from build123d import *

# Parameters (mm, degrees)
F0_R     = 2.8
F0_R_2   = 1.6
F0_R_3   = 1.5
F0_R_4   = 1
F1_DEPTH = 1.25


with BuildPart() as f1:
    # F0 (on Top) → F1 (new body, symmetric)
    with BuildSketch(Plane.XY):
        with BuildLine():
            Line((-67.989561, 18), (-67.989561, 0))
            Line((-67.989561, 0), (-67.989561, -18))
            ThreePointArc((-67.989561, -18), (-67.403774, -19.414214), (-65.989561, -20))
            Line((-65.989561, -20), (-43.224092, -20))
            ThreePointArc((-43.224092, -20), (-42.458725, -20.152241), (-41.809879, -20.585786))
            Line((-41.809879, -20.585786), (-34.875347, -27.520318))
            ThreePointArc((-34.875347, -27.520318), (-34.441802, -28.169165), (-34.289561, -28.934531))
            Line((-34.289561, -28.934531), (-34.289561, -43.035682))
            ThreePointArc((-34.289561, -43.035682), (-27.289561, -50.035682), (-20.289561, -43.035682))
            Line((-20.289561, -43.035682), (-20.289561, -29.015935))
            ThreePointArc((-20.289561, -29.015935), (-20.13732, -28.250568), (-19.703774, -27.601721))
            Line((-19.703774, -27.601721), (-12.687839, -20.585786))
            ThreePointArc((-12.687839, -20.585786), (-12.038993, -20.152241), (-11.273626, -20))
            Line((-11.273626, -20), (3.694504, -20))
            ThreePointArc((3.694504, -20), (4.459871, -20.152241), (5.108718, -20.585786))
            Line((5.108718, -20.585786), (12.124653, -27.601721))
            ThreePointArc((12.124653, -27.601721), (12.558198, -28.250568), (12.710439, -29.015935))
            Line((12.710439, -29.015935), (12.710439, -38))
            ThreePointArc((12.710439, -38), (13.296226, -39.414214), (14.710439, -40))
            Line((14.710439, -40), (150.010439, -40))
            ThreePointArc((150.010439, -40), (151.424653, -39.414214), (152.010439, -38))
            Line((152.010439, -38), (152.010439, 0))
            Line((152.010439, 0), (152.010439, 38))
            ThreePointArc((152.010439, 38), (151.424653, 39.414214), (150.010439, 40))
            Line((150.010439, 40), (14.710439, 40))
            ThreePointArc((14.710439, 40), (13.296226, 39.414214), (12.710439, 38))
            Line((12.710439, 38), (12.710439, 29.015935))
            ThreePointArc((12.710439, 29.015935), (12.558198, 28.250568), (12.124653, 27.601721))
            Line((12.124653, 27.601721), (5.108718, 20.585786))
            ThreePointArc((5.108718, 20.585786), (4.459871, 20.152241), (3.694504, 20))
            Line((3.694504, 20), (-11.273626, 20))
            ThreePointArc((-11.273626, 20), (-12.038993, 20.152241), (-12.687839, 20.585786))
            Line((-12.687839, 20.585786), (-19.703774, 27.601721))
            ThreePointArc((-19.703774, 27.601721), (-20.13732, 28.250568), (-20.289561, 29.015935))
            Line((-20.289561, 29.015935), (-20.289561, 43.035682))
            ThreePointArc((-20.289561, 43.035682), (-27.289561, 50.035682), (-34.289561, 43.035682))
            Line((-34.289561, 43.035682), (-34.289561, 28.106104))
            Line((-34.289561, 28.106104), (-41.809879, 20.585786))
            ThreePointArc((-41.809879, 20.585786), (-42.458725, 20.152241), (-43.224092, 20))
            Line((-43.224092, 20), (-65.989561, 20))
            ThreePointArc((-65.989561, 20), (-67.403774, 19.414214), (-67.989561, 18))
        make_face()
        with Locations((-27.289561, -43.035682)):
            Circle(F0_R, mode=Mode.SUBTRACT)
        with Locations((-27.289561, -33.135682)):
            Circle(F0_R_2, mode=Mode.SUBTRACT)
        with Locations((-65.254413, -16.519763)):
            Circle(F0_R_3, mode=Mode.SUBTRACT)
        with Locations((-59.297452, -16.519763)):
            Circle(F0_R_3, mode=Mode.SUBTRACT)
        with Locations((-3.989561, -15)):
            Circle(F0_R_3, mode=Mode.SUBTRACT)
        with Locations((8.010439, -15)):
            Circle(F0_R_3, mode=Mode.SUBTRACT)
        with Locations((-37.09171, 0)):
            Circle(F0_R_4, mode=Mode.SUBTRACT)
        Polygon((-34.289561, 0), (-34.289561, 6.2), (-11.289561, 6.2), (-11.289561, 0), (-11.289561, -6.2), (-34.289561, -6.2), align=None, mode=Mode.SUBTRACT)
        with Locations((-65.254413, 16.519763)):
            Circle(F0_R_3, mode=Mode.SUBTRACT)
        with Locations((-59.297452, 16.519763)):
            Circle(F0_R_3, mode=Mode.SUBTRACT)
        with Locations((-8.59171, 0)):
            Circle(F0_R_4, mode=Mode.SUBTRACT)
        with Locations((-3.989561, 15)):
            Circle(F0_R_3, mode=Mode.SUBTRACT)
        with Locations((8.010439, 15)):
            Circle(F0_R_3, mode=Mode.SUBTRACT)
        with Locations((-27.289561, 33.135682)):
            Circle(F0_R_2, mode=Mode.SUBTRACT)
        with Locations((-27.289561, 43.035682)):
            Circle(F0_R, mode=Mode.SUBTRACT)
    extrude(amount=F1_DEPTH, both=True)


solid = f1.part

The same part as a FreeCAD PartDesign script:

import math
import FreeCAD as App
import Part
import Sketcher

V = App.Vector
Q = App.Units.Quantity


def add_polygon(sketch, points):
    """Adds a closed chain of lines whose ends are joined by coincident constraints."""
    first, n = sketch.GeometryCount, len(points)
    for a, b in zip(points, points[1:] + points[:1]):
        sketch.addGeometry(Part.LineSegment(App.Vector(*a, 0), App.Vector(*b, 0)), False)
    for i in range(n):
        sketch.addConstraint(Sketcher.Constraint("Coincident", first + i, 2, first + (i + 1) % n, 1))

doc = App.newDocument("Part")
body = doc.addObject("PartDesign::Body", "Body")

sketch1 = body.newObject("Sketcher::SketchObject", "Sketch")
sketch1.AttachmentSupport = (doc.getObject("XY_Plane"), [""])
sketch1.MapMode = "FlatFace"
sketch1.addGeometry(Part.LineSegment(V(-68, 18, 0), V(-68, -18, 0)), False)
sketch1.addGeometry(Part.ArcOfCircle(Part.Circle(V(-66, -18, 0), V(0, 0, 1), 2), math.radians(-180), math.radians(-90)), False)
sketch1.addGeometry(Part.LineSegment(V(-66, -20, 0), V(-43.2, -20, 0)), False)
sketch1.addGeometry(Part.ArcOfCircle(Part.Circle(V(-43.2, -22, 0), V(0, 0, 1), 2), math.radians(45), math.radians(90)), False)
sketch1.addGeometry(Part.LineSegment(V(-41.8, -20.6, 0), V(-34.9, -27.5, 0)), False)
sketch1.addGeometry(Part.ArcOfCircle(Part.Circle(V(-36.3, -28.9, 0), V(0, 0, 1), 2), math.radians(0), math.radians(45)), False)
sketch1.addGeometry(Part.LineSegment(V(-34.3, -28.9, 0), V(-34.3, -43, 0)), False)
sketch1.addGeometry(Part.ArcOfCircle(Part.Circle(V(-27.3, -43, 0), V(0, 0, 1), 7), math.radians(180), math.radians(360)), False)
sketch1.addGeometry(Part.LineSegment(V(-20.3, -43, 0), V(-20.3, -29, 0)), False)
sketch1.addGeometry(Part.ArcOfCircle(Part.Circle(V(-18.3, -29, 0), V(0, 0, 1), 2), math.radians(135), math.radians(180)), False)
sketch1.addGeometry(Part.LineSegment(V(-19.7, -27.6, 0), V(-12.7, -20.6, 0)), False)
sketch1.addGeometry(Part.ArcOfCircle(Part.Circle(V(-11.3, -22, 0), V(0, 0, 1), 2), math.radians(90), math.radians(135)), False)
sketch1.addGeometry(Part.LineSegment(V(-11.3, -20, 0), V(3.7, -20, 0)), False)
sketch1.addGeometry(Part.ArcOfCircle(Part.Circle(V(3.7, -22, 0), V(0, 0, 1), 2), math.radians(45), math.radians(90)), False)
sketch1.addGeometry(Part.LineSegment(V(5.1, -20.6, 0), V(12.1, -27.6, 0)), False)
sketch1.addGeometry(Part.ArcOfCircle(Part.Circle(V(10.7, -29, 0), V(0, 0, 1), 2), math.radians(0), math.radians(45)), False)
sketch1.addGeometry(Part.LineSegment(V(12.7, -29, 0), V(12.7, -38, 0)), False)
sketch1.addGeometry(Part.ArcOfCircle(Part.Circle(V(14.7, -38, 0), V(0, 0, 1), 2), math.radians(-180), math.radians(-90)), False)
sketch1.addGeometry(Part.LineSegment(V(14.7, -40, 0), V(150, -40, 0)), False)
sketch1.addGeometry(Part.ArcOfCircle(Part.Circle(V(150, -38, 0), V(0, 0, 1), 2), math.radians(-90), math.radians(0)), False)
sketch1.addGeometry(Part.LineSegment(V(152, -38, 0), V(152, 38, 0)), False)
sketch1.addGeometry(Part.ArcOfCircle(Part.Circle(V(150, 38, 0), V(0, 0, 1), 2), math.radians(0), math.radians(90)), False)
sketch1.addGeometry(Part.LineSegment(V(150, 40, 0), V(14.7, 40, 0)), False)
sketch1.addGeometry(Part.ArcOfCircle(Part.Circle(V(14.7, 38, 0), V(0, 0, 1), 2), math.radians(90), math.radians(180)), False)
sketch1.addGeometry(Part.LineSegment(V(12.7, 38, 0), V(12.7, 29, 0)), False)
sketch1.addGeometry(Part.ArcOfCircle(Part.Circle(V(10.7, 29, 0), V(0, 0, 1), 2), math.radians(-45), math.radians(0)), False)
sketch1.addGeometry(Part.LineSegment(V(12.1, 27.6, 0), V(5.1, 20.6, 0)), False)
sketch1.addGeometry(Part.ArcOfCircle(Part.Circle(V(3.7, 22, 0), V(0, 0, 1), 2), math.radians(-90), math.radians(-45)), False)
sketch1.addGeometry(Part.LineSegment(V(3.7, 20, 0), V(-11.3, 20, 0)), False)
sketch1.addGeometry(Part.ArcOfCircle(Part.Circle(V(-11.3, 22, 0), V(0, 0, 1), 2), math.radians(-135), math.radians(-90)), False)
sketch1.addGeometry(Part.LineSegment(V(-12.7, 20.6, 0), V(-19.7, 27.6, 0)), False)
sketch1.addGeometry(Part.ArcOfCircle(Part.Circle(V(-18.3, 29, 0), V(0, 0, 1), 2), math.radians(180), math.radians(225)), False)
sketch1.addGeometry(Part.LineSegment(V(-20.3, 29, 0), V(-20.3, 43, 0)), False)
sketch1.addGeometry(Part.ArcOfCircle(Part.Circle(V(-27.3, 43, 0), V(0, 0, 1), 7), math.radians(0), math.radians(180)), False)
sketch1.addGeometry(Part.LineSegment(V(-34.3, 43, 0), V(-34.3, 28.1, 0)), False)
sketch1.addGeometry(Part.LineSegment(V(-34.3, 28.1, 0), V(-41.8, 20.6, 0)), False)
sketch1.addGeometry(Part.ArcOfCircle(Part.Circle(V(-43.2, 22, 0), V(0, 0, 1), 2), math.radians(-90), math.radians(-45)), False)
sketch1.addGeometry(Part.LineSegment(V(-43.2, 20, 0), V(-66, 20, 0)), False)
sketch1.addGeometry(Part.ArcOfCircle(Part.Circle(V(-66, 18, 0), V(0, 0, 1), 2), math.radians(90), math.radians(180)), False)
sketch1.addGeometry(Part.Circle(V(-65.3, -16.5, 0), V(0, 0, 1), 1.5), False)
sketch1.addGeometry(Part.Circle(V(-59.3, -16.5, 0), V(0, 0, 1), 1.5), False)
sketch1.addGeometry(Part.Circle(V(-27.3, -43, 0), V(0, 0, 1), 2.8), False)
sketch1.addGeometry(Part.Circle(V(-27.3, -33.1, 0), V(0, 0, 1), 1.6), False)
sketch1.addGeometry(Part.Circle(V(-4, -15, 0), V(0, 0, 1), 1.5), False)
sketch1.addGeometry(Part.Circle(V(8, -15, 0), V(0, 0, 1), 1.5), False)
sketch1.addGeometry(Part.Circle(V(-65.3, 16.5, 0), V(0, 0, 1), 1.5), False)
sketch1.addGeometry(Part.Circle(V(-59.3, 16.5, 0), V(0, 0, 1), 1.5), False)
sketch1.addGeometry(Part.Circle(V(-37.1, 0, 0), V(0, 0, 1), 1), False)
add_polygon(sketch1, [(-34.3, -6.2), (-34.3, 6.2), (-11.3, 6.2), (-11.3, -6.2)])
sketch1.addGeometry(Part.Circle(V(-8.6, 0, 0), V(0, 0, 1), 1), False)
sketch1.addGeometry(Part.Circle(V(-4, 15, 0), V(0, 0, 1), 1.5), False)
sketch1.addGeometry(Part.Circle(V(8, 15, 0), V(0, 0, 1), 1.5), False)
sketch1.addGeometry(Part.Circle(V(-27.3, 33.1, 0), V(0, 0, 1), 1.6), False)
sketch1.addGeometry(Part.Circle(V(-27.3, 43, 0), V(0, 0, 1), 2.8), False)
sketch1.addConstraint([
    Sketcher.Constraint("Tangent", 0, 2, 1, 1),
    Sketcher.Constraint("Tangent", 1, 2, 2, 1),
    Sketcher.Constraint("Tangent", 2, 2, 3, 2),
    Sketcher.Constraint("Tangent", 3, 1, 4, 1),
    Sketcher.Constraint("Tangent", 4, 2, 5, 2),
    Sketcher.Constraint("Tangent", 5, 1, 6, 1),
    Sketcher.Constraint("Tangent", 6, 2, 7, 1),
    Sketcher.Constraint("Tangent", 7, 2, 8, 1),
    Sketcher.Constraint("Tangent", 8, 2, 9, 2),
    Sketcher.Constraint("Tangent", 9, 1, 10, 1),
    Sketcher.Constraint("Tangent", 10, 2, 11, 2),
    Sketcher.Constraint("Tangent", 11, 1, 12, 1),
    Sketcher.Constraint("Tangent", 12, 2, 13, 2),
    Sketcher.Constraint("Tangent", 13, 1, 14, 1),
    Sketcher.Constraint("Tangent", 14, 2, 15, 2),
    Sketcher.Constraint("Tangent", 15, 1, 16, 1),
    Sketcher.Constraint("Tangent", 16, 2, 17, 1),
    Sketcher.Constraint("Tangent", 17, 2, 18, 1),
    Sketcher.Constraint("Tangent", 18, 2, 19, 1),
    Sketcher.Constraint("Tangent", 19, 2, 20, 1),
    Sketcher.Constraint("Tangent", 20, 2, 21, 1),
    Sketcher.Constraint("Tangent", 21, 2, 22, 1),
    Sketcher.Constraint("Tangent", 22, 2, 23, 1),
    Sketcher.Constraint("Tangent", 23, 2, 24, 1),
    Sketcher.Constraint("Tangent", 24, 2, 25, 2),
    Sketcher.Constraint("Tangent", 25, 1, 26, 1),
    Sketcher.Constraint("Tangent", 26, 2, 27, 2),
    Sketcher.Constraint("Tangent", 27, 1, 28, 1),
    Sketcher.Constraint("Tangent", 28, 2, 29, 2),
    Sketcher.Constraint("Tangent", 29, 1, 30, 1),
    Sketcher.Constraint("Tangent", 30, 2, 31, 2),
    Sketcher.Constraint("Tangent", 31, 1, 32, 1),
    Sketcher.Constraint("Tangent", 32, 2, 33, 1),
    Sketcher.Constraint("Tangent", 33, 2, 34, 1),
    Sketcher.Constraint("Coincident", 34, 2, 35, 1),
    Sketcher.Constraint("Tangent", 35, 2, 36, 2),
    Sketcher.Constraint("Tangent", 36, 1, 37, 1),
    Sketcher.Constraint("Tangent", 37, 2, 38, 1),
    Sketcher.Constraint("Tangent", 38, 2, 0, 1),
    Sketcher.Constraint("Vertical", 0),
    Sketcher.Constraint("Horizontal", 2),
    Sketcher.Constraint("Vertical", 6),
    Sketcher.Constraint("Vertical", 8),
    Sketcher.Constraint("Horizontal", 12),
    Sketcher.Constraint("Vertical", 16),
    Sketcher.Constraint("Horizontal", 18),
    Sketcher.Constraint("Vertical", 20),
    Sketcher.Constraint("Horizontal", 22),
    Sketcher.Constraint("Vertical", 24),
    Sketcher.Constraint("Horizontal", 28),
    Sketcher.Constraint("Vertical", 32),
    Sketcher.Constraint("Vertical", 34),
    Sketcher.Constraint("Horizontal", 37),
    Sketcher.Constraint("Vertical", 48),
    Sketcher.Constraint("Horizontal", 49),
    Sketcher.Constraint("Vertical", 50),
    Sketcher.Constraint("Horizontal", 51),
    Sketcher.Constraint("Coincident", 41, 3, 7, 3),
    Sketcher.Constraint("Coincident", 56, 3, 33, 3),
    Sketcher.Constraint("Equal", 1, 3),
    Sketcher.Constraint("Equal", 3, 9),
    Sketcher.Constraint("Equal", 9, 11),
    Sketcher.Constraint("Equal", 5, 13),
    Sketcher.Constraint("Equal", 13, 15),
    Sketcher.Constraint("Equal", 11, 17),
    Sketcher.Constraint("Equal", 17, 19),
    Sketcher.Constraint("Equal", 19, 21),
    Sketcher.Constraint("Equal", 21, 23),
    Sketcher.Constraint("Equal", 15, 25),
    Sketcher.Constraint("Equal", 25, 27),
    Sketcher.Constraint("Equal", 23, 29),
    Sketcher.Constraint("Equal", 29, 31),
    Sketcher.Constraint("Equal", 7, 33),
    Sketcher.Constraint("Equal", 31, 36),
    Sketcher.Constraint("Equal", 36, 38),
    Sketcher.Constraint("Equal", 39, 40),
    Sketcher.Constraint("Equal", 40, 43),
    Sketcher.Constraint("Equal", 43, 44),
    Sketcher.Constraint("Equal", 44, 45),
    Sketcher.Constraint("Equal", 45, 46),
    Sketcher.Constraint("Equal", 47, 52),
    Sketcher.Constraint("Equal", 46, 53),
    Sketcher.Constraint("Equal", 53, 54),
    Sketcher.Constraint("Equal", 42, 55),
    Sketcher.Constraint("Equal", 41, 56),
    Sketcher.Constraint("Symmetric", 17, 3, 23, 3, -1),
    Sketcher.Constraint("Symmetric", 13, 3, 27, 3, -1),
    Sketcher.Constraint("Symmetric", 9, 3, 31, 3, -1),
    Sketcher.Constraint("Symmetric", 3, 3, 36, 3, -1),
    Sketcher.Constraint("Symmetric", 39, 3, 45, 3, -1),
    Sketcher.Constraint("Symmetric", 40, 3, 46, 3, -1),
    Sketcher.Constraint("Symmetric", 43, 3, 53, 3, -1),
    Sketcher.Constraint("Symmetric", 44, 3, 54, 3, -1),
    Sketcher.Constraint("Symmetric", 42, 3, 55, 3, -1),
    Sketcher.Constraint("PointOnObject", 47, 3, -1),
    Sketcher.Constraint("PointOnObject", 52, 3, -1),
    Sketcher.Constraint("Perpendicular", 4, 10),
    Sketcher.Constraint("Perpendicular", 10, 14),
    Sketcher.Constraint("Perpendicular", 14, 26),
    Sketcher.Constraint("Perpendicular", 26, 30),
    Sketcher.Constraint("Perpendicular", 30, 35),
    Sketcher.Constraint("Horizontal", 3, 3, 11, 3),
    Sketcher.Constraint("Horizontal", 9, 3, 15, 3),
    Sketcher.Constraint("Horizontal", 25, 3, 31, 3),
    Sketcher.Constraint("Horizontal", 39, 3, 40, 3),
    Sketcher.Constraint("Horizontal", 43, 3, 44, 3),
    Sketcher.Constraint("Horizontal", 10, 2, 13, 1),
    Sketcher.Constraint("Vertical", 41, 3, 42, 3),
    Sketcher.Constraint("Vertical", 34, 2, 48, 2),
    Sketcher.Constraint("Equal", 8, 32),
    Sketcher.Constraint("Diameter", 39, Q("3 mm")),
    Sketcher.Constraint("Diameter", 47, Q("2 mm")),
    Sketcher.Constraint("Radius", 1, Q("2 mm")),
    Sketcher.Constraint("Radius", 7, Q("7 mm")),
    Sketcher.Constraint("Diameter", 41, Q("5.6 mm")),
    Sketcher.Constraint("Diameter", 42, Q("3.2 mm")),
    Sketcher.Constraint("DistanceX", 49, 1, 49, 2, Q("23 mm")),
    Sketcher.Constraint("DistanceY", 0, 2, 0, 1, Q("36 mm")),
    Sketcher.Constraint("DistanceY", 20, 1, 20, 2, Q("76 mm")),
    Sketcher.Constraint("DistanceX", 18, 1, 18, 2, Q("135.3 mm")),
    Sketcher.Constraint("DistanceY", 48, 1, 48, 2, Q("12.4 mm")),
    Sketcher.Constraint("DistanceY", 43, 3, -1, 1, Q("15 mm")),
    Sketcher.Constraint("DistanceY", -1, 1, 48, 2, Q("6.2 mm")),
    Sketcher.Constraint("DistanceX", 2, 1, 2, 2, Q("22.765469 mm")),
    Sketcher.Constraint("DistanceX", 12, 1, 12, 2, Q("14.96813 mm")),
    Sketcher.Constraint("DistanceY", 6, 2, 6, 1, Q("14.101151 mm")),
    Sketcher.Constraint("Distance", 4, Q("9.806909 mm")),
    Sketcher.Constraint("Distance", 10, Q("9.92203 mm")),
    Sketcher.Constraint("DistanceX", 1, 3, -1, 1, Q("65.989561 mm")),
    Sketcher.Constraint("DistanceX", 43, 3, -1, 1, Q("3.989561 mm")),
    Sketcher.Constraint("DistanceX", -1, 1, 44, 3, Q("8.010439 mm")),
    Sketcher.Constraint("DistanceX", 47, 3, -1, 1, Q("37.09171 mm")),
    Sketcher.Constraint("DistanceX", 52, 3, -1, 1, Q("8.59171 mm")),
    Sketcher.Constraint("DistanceX", 39, 3, -1, 1, Q("65.254413 mm")),
    Sketcher.Constraint("DistanceY", 39, 3, -1, 1, Q("16.519763 mm")),
    Sketcher.Constraint("DistanceX", 40, 3, -1, 1, Q("59.297452 mm")),
    Sketcher.Constraint("DistanceY", 42, 3, -1, 1, Q("33.135682 mm")),
])
pad1 = body.newObject("PartDesign::Pad", "Pad")
pad1.Profile = sketch1
pad1.Length = 2.5
pad1.Midplane = True

doc.recompute()
